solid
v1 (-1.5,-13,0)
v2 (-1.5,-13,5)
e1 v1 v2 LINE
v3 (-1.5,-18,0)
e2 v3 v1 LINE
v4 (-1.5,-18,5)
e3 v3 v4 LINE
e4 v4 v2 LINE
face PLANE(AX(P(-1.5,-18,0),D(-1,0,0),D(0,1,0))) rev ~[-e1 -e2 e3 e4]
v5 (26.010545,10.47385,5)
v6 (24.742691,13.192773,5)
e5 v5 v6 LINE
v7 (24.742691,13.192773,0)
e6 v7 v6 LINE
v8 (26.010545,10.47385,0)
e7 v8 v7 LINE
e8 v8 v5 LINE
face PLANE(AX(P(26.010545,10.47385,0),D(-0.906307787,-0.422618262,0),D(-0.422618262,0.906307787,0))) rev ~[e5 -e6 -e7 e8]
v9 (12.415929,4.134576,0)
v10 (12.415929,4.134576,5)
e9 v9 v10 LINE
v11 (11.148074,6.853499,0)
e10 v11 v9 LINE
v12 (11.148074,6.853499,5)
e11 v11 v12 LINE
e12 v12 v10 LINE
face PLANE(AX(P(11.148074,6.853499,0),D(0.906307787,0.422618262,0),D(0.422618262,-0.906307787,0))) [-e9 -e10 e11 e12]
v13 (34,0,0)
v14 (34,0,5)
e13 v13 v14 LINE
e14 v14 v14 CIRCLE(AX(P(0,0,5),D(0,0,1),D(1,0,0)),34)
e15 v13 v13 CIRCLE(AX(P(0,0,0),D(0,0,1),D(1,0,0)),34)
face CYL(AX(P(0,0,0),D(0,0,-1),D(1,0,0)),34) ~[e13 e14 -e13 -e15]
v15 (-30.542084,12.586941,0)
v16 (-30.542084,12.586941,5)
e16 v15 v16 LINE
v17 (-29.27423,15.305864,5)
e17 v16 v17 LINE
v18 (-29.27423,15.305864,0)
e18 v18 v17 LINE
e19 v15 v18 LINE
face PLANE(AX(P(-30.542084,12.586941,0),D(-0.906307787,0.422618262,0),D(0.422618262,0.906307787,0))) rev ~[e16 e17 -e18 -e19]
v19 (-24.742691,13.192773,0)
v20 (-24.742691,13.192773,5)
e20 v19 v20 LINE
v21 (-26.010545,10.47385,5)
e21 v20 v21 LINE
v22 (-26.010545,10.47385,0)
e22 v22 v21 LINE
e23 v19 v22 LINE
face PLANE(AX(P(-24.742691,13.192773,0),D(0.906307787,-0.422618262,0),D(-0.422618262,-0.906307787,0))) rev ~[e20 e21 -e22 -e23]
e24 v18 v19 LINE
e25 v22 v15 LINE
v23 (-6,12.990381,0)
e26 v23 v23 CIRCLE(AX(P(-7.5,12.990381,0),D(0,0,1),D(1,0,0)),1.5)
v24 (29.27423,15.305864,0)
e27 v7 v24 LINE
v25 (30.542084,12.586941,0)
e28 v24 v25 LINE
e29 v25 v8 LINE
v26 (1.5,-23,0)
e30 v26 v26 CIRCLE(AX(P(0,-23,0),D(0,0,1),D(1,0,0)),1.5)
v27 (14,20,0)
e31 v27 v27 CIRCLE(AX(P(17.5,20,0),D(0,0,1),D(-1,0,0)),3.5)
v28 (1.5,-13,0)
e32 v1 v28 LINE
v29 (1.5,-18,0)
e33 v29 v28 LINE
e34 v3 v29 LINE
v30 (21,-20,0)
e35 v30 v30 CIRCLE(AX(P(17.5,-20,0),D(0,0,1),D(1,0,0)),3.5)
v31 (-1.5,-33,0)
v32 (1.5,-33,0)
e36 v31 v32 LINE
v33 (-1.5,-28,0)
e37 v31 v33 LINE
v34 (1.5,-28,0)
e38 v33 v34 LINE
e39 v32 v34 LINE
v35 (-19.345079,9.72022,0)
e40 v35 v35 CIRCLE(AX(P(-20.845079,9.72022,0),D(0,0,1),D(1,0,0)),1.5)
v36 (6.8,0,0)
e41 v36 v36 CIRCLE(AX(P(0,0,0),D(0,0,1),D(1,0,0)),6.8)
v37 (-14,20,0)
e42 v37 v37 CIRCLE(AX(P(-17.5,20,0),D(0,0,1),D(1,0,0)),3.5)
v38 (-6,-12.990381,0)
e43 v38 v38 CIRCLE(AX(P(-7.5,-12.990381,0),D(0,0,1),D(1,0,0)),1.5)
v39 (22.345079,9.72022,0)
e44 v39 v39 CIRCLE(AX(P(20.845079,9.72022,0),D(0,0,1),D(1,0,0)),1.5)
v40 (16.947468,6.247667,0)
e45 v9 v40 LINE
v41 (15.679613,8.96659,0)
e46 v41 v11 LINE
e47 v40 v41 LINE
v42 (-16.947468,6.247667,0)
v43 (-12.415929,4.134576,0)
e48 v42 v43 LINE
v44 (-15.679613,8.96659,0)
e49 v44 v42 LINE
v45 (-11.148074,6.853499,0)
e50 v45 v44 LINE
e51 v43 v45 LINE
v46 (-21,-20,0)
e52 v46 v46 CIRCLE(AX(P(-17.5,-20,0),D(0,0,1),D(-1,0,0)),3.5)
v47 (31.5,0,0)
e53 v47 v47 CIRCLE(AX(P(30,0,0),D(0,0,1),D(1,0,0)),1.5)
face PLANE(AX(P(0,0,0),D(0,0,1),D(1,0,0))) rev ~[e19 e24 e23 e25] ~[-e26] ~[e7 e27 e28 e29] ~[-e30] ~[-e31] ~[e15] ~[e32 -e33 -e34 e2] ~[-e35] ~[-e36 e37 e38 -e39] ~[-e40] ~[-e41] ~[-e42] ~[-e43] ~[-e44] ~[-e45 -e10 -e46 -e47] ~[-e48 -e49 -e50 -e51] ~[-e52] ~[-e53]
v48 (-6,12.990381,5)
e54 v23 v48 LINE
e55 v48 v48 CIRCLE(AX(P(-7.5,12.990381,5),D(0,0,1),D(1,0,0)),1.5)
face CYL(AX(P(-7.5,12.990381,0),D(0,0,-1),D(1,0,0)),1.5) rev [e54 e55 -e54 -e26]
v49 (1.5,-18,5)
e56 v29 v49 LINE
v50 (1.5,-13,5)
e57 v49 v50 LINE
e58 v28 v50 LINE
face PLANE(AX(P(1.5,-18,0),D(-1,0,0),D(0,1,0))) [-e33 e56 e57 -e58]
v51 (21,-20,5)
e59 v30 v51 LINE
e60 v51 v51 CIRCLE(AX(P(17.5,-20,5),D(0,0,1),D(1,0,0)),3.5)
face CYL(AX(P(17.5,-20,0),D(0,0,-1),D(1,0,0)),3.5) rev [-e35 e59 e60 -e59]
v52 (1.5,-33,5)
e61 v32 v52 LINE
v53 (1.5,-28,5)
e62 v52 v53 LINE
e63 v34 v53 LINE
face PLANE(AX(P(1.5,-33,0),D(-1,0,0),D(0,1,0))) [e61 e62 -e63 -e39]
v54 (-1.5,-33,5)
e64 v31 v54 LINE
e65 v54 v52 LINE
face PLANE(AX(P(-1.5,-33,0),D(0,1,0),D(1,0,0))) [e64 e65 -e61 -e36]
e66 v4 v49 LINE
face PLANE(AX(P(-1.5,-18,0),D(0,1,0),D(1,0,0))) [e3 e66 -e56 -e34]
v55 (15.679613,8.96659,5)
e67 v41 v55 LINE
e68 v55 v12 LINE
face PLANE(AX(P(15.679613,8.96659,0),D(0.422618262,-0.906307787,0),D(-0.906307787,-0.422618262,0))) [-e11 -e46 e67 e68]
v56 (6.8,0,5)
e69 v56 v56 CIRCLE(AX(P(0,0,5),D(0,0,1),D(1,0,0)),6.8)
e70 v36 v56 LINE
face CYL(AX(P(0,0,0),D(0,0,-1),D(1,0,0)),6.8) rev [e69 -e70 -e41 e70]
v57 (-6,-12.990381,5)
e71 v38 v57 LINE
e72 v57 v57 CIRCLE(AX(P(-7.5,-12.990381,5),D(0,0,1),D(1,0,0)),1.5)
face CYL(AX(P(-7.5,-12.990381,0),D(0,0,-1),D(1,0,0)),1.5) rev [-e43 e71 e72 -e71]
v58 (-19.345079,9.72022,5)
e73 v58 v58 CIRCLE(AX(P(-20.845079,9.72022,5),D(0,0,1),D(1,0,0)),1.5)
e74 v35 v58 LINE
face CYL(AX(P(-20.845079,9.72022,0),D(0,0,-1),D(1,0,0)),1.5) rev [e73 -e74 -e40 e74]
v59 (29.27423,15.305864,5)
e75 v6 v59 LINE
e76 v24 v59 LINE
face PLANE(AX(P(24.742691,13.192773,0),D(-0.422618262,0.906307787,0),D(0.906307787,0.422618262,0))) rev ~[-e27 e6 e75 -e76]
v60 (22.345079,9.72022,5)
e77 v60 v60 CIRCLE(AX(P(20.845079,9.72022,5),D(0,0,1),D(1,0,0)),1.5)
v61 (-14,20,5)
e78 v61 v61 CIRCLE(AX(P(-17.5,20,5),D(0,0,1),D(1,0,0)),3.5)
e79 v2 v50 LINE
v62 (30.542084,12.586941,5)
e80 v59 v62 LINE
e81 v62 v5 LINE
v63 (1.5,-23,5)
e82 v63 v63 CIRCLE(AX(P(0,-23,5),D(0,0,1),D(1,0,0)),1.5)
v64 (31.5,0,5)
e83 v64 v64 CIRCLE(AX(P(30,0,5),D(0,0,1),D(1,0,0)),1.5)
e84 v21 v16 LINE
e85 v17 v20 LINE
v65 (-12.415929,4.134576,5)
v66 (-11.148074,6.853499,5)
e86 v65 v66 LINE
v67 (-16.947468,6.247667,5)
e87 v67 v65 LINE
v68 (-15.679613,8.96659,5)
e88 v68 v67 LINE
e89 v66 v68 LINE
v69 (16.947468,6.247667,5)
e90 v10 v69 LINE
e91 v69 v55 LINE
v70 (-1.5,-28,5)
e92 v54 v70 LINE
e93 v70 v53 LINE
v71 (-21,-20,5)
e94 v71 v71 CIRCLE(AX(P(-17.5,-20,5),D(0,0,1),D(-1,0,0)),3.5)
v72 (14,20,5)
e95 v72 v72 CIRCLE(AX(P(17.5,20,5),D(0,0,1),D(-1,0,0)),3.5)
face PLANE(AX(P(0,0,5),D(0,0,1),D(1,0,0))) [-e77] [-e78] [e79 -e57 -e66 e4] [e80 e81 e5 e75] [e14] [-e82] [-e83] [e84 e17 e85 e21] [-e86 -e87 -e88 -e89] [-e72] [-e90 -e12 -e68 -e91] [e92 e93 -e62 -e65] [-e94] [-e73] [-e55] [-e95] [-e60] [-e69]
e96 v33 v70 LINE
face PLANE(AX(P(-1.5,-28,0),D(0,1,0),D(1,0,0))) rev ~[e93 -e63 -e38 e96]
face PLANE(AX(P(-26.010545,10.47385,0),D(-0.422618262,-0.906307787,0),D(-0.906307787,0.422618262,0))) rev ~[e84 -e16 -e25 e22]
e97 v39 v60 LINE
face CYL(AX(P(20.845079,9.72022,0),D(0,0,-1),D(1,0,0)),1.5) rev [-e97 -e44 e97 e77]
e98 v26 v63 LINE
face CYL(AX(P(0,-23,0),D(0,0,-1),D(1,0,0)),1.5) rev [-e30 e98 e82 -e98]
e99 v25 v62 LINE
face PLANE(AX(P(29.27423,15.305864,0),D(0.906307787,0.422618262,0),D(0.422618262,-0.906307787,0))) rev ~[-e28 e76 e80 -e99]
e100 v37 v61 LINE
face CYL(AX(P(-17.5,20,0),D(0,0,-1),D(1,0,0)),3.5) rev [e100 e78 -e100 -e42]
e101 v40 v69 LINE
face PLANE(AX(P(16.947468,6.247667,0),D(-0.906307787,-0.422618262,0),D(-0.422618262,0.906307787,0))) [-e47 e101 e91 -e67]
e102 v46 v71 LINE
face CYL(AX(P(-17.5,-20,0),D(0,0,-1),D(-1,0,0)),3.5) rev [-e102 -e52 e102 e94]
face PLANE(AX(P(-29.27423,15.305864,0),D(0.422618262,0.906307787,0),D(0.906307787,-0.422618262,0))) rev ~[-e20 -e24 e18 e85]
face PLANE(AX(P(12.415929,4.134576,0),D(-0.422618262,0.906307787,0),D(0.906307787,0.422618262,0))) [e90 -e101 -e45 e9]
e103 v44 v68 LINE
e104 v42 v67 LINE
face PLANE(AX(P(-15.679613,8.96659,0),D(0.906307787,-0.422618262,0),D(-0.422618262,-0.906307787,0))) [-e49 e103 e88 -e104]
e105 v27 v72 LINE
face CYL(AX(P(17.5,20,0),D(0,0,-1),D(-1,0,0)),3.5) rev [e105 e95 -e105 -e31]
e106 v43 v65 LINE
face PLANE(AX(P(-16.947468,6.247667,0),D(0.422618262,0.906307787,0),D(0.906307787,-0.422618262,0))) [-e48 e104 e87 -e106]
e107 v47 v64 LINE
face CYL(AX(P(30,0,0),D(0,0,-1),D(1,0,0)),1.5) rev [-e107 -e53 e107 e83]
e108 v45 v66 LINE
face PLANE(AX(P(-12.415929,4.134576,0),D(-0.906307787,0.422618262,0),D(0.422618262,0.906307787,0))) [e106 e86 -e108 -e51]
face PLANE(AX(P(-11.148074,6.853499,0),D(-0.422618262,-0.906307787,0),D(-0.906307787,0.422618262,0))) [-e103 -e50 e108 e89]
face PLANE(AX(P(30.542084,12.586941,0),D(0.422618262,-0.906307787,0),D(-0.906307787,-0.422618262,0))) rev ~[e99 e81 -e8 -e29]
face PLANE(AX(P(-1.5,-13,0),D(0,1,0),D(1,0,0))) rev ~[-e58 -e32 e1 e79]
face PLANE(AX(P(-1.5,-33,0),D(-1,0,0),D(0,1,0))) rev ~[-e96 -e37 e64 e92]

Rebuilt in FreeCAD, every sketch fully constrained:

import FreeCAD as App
import Part
import Sketcher
Q = App.Units.Quantity


def add_polygon(sketch, points):
    """Adds a closed chain of lines whose ends are joined by coincident constraints."""
    first, n = sketch.GeometryCount, len(points)
    for a, b in zip(points, points[1:] + points[:1]):
        sketch.addGeometry(Part.LineSegment(App.Vector(*a, 0), App.Vector(*b, 0)), False)
    for i in range(n):
        sketch.addConstraint(Sketcher.Constraint("Coincident", first + i, 2, first + (i + 1) % n, 1))

doc = App.newDocument("Part")
params = doc.addObject("Spreadsheet::Sheet", "Params")
for row, (alias, value) in enumerate([
    ("sketch1_diameter", "68 mm"),
    ("sketch1_diameter2", "7 mm"),
    ("sketch1_diameter3", "3 mm"),
    ("sketch1_diameter4", "13.6 mm"),
    ("sketch1_width", "3 mm"),
    ("pad1_length", "5 mm"),
], start=1):
    params.set(f"A{row}", alias)
    params.set(f"B{row}", "=" + value)
    params.setAlias(f"B{row}", alias)

body = doc.addObject("PartDesign::Body", "Body")

sketch1 = body.newObject("Sketcher::SketchObject", "Sketch")
sketch1.AttachmentSupport = (doc.getObject("XY_Plane"), [""])
sketch1.MapMode = "FlatFace"
sketch1.addGeometry(Part.Circle(App.Vector(0, 0, 0), App.Vector(0, 0, 1), 34), False)
sketch1.addGeometry(Part.Circle(App.Vector(-17.5, -20, 0), App.Vector(0, 0, 1), 3.5), False)
add_polygon(sketch1, [(1.5, -33), (-1.5, -33), (-1.5, -28), (1.5, -28)])
sketch1.addGeometry(Part.Circle(App.Vector(0, -23, 0), App.Vector(0, 0, 1), 1.5), False)
sketch1.addGeometry(Part.Circle(App.Vector(-7.5, -13, 0), App.Vector(0, 0, 1), 1.5), False)
add_polygon(sketch1, [(1.5, -18), (-1.5, -18), (-1.5, -13), (1.5, -13)])
sketch1.addGeometry(Part.Circle(App.Vector(17.5, -20, 0), App.Vector(0, 0, 1), 3.5), False)
sketch1.addGeometry(Part.Circle(App.Vector(0, 0, 0), App.Vector(0, 0, 1), 6.8), False)
add_polygon(sketch1, [(-12.4, 4.1), (-16.9, 6.2), (-15.7, 9), (-11.1, 6.9)])
add_polygon(sketch1, [(-24.7, 13.2), (-26, 10.5), (-30.5, 12.6), (-29.3, 15.3)])
sketch1.addGeometry(Part.Circle(App.Vector(-20.8, 9.7, 0), App.Vector(0, 0, 1), 1.5), False)
sketch1.addGeometry(Part.Circle(App.Vector(-17.5, 20, 0), App.Vector(0, 0, 1), 3.5), False)
sketch1.addGeometry(Part.Circle(App.Vector(-7.5, 13, 0), App.Vector(0, 0, 1), 1.5), False)
add_polygon(sketch1, [(11.1, 6.9), (15.7, 9), (16.9, 6.2), (12.4, 4.1)])
sketch1.addGeometry(Part.Circle(App.Vector(30, 0, 0), App.Vector(0, 0, 1), 1.5), False)
sketch1.addGeometry(Part.Circle(App.Vector(20.8, 9.7, 0), App.Vector(0, 0, 1), 1.5), False)
add_polygon(sketch1, [(26, 10.5), (24.7, 13.2), (29.3, 15.3), (30.5, 12.6)])
sketch1.addGeometry(Part.Circle(App.Vector(17.5, 20, 0), App.Vector(0, 0, 1), 3.5), False)
sketch1.addConstraint([
    Sketcher.Constraint("Horizontal", 2),
    Sketcher.Constraint("Vertical", 3),
    Sketcher.Constraint("Horizontal", 4),
    Sketcher.Constraint("Vertical", 5),
    Sketcher.Constraint("Horizontal", 8),
    Sketcher.Constraint("Vertical", 9),
    Sketcher.Constraint("Horizontal", 10),
    Sketcher.Constraint("Vertical", 11),
    Sketcher.Constraint("Coincident", 0, 3, -1, 1),
    Sketcher.Constraint("Coincident", 13, 3, -1, 1),
    Sketcher.Constraint("Equal", 6, 7),
    Sketcher.Constraint("Equal", 1, 12),
    Sketcher.Constraint("Equal", 7, 22),
    Sketcher.Constraint("Equal", 12, 23),
    Sketcher.Constraint("Equal", 22, 24),
    Sketcher.Constraint("Equal", 24, 29),
    Sketcher.Constraint("Equal", 29, 30),
    Sketcher.Constraint("Equal", 23, 35),
    Sketcher.Constraint("Symmetric", 12, 3, 23, 3, -1, 1),
    Sketcher.Constraint("Symmetric", 1, 3, 35, 3, -1, 1),
    Sketcher.Constraint("Symmetric", 1, 3, 12, 3, -2),
    Sketcher.Constraint("Symmetric", 22, 3, 30, 3, -2),
    Sketcher.Constraint("Symmetric", 15, 2, 25, 2, -2),
    Sketcher.Constraint("Symmetric", 14, 2, 26, 2, -2),
    Sketcher.Constraint("Symmetric", 17, 2, 27, 2, -2),
    Sketcher.Constraint("Symmetric", 16, 2, 28, 2, -2),
    Sketcher.Constraint("Symmetric", 21, 2, 31, 2, -2),
    Sketcher.Constraint("Symmetric", 20, 2, 32, 2, -2),
    Sketcher.Constraint("Symmetric", 19, 2, 33, 2, -2),
    Sketcher.Constraint("Symmetric", 18, 2, 34, 2, -2),
    Sketcher.Constraint("Symmetric", 7, 3, 24, 3, -1),
    Sketcher.Constraint("PointOnObject", 6, 3, -2),
    Sketcher.Constraint("PointOnObject", 29, 3, -1),
    Sketcher.Constraint("Perpendicular", 14, 15),
    Sketcher.Constraint("Perpendicular", 15, 16),
    Sketcher.Constraint("Perpendicular", 16, 17),
    Sketcher.Constraint("Parallel", 17, 18),
    Sketcher.Constraint("Perpendicular", 18, 19),
    Sketcher.Constraint("Perpendicular", 19, 20),
    Sketcher.Constraint("Perpendicular", 20, 21),
    Sketcher.Constraint("Vertical", 3, 2, 8, 2),
    Sketcher.Constraint("Vertical", 5, 2, 10, 2),
    Sketcher.Constraint("Equal", 5, 9),
    Sketcher.Constraint("Equal", 17, 18),
    Sketcher.Constraint("Equal", 16, 19),
    Sketcher.Constraint("Diameter", 0, Q("68 mm")),
    Sketcher.Constraint("Diameter", 1, Q("7 mm")),
    Sketcher.Constraint("Diameter", 6, Q("3 mm")),
    Sketcher.Constraint("Diameter", 13, Q("13.6 mm")),
    Sketcher.Constraint("DistanceX", 2, 2, 2, 1, Q("3 mm")),
    Sketcher.Constraint("DistanceY", 3, 1, 3, 2, Q("5 mm")),
    Sketcher.Constraint("Angle", 14, Q("155 deg")),
    Sketcher.Constraint("Distance", 14, Q("5 mm")),
    Sketcher.Constraint("Distance", 15, Q("3 mm")),
    Sketcher.Constraint("DistanceY", 1, 3, -1, 1, Q("20 mm")),
    Sketcher.Constraint("DistanceY", 6, 3, -1, 1, Q("23 mm")),
    Sketcher.Constraint("DistanceX", -1, 1, 29, 3, Q("30 mm")),
    Sketcher.Constraint("DistanceY", 2, 2, -1, 1, Q("33 mm")),
    Sketcher.Constraint("DistanceY", 8, 2, -1, 1, Q("18 mm")),
    Sketcher.Constraint("DistanceX", 1, 3, 7, 3, Q("10 mm")),
    Sketcher.Constraint("DistanceX", 7, 3, 12, 3, Q("25 mm")),
    Sketcher.Constraint("DistanceX", 1, 3, 2, 2, Q("16 mm")),
    Sketcher.Constraint("DistanceY", -1, 1, 16, 2, Q("6.853499 mm")),
    Sketcher.Constraint("DistanceY", 7, 3, 22, 3, Q("22.710601 mm")),
    Sketcher.Constraint("DistanceY", 7, 3, -1, 1, Q("12.990381 mm")),
    Sketcher.Constraint("DistanceX", 22, 3, -1, 1, Q("20.845079 mm")),
    Sketcher.Constraint("DistanceX", 17, 2, -1, 1, Q("12.415929 mm")),
    Sketcher.Constraint("DistanceY", -1, 1, 18, 2, Q("10.47385 mm")),
    Sketcher.Constraint("DistanceX", 20, 2, -1, 1, Q("29.27423 mm")),
])
sketch1.setExpression("Constraints[69]", "Params.sketch1_diameter")
sketch1.setExpression("Constraints[70]", "Params.sketch1_diameter2")
sketch1.setExpression("Constraints[71]", "Params.sketch1_diameter3")
sketch1.setExpression("Constraints[72]", "Params.sketch1_diameter4")
sketch1.setExpression("Constraints[73]", "Params.sketch1_width")
pad1 = body.newObject("PartDesign::Pad", "Pad")
pad1.Profile = sketch1
pad1.setExpression("Length", "Params.pad1_length")

doc.recompute()
